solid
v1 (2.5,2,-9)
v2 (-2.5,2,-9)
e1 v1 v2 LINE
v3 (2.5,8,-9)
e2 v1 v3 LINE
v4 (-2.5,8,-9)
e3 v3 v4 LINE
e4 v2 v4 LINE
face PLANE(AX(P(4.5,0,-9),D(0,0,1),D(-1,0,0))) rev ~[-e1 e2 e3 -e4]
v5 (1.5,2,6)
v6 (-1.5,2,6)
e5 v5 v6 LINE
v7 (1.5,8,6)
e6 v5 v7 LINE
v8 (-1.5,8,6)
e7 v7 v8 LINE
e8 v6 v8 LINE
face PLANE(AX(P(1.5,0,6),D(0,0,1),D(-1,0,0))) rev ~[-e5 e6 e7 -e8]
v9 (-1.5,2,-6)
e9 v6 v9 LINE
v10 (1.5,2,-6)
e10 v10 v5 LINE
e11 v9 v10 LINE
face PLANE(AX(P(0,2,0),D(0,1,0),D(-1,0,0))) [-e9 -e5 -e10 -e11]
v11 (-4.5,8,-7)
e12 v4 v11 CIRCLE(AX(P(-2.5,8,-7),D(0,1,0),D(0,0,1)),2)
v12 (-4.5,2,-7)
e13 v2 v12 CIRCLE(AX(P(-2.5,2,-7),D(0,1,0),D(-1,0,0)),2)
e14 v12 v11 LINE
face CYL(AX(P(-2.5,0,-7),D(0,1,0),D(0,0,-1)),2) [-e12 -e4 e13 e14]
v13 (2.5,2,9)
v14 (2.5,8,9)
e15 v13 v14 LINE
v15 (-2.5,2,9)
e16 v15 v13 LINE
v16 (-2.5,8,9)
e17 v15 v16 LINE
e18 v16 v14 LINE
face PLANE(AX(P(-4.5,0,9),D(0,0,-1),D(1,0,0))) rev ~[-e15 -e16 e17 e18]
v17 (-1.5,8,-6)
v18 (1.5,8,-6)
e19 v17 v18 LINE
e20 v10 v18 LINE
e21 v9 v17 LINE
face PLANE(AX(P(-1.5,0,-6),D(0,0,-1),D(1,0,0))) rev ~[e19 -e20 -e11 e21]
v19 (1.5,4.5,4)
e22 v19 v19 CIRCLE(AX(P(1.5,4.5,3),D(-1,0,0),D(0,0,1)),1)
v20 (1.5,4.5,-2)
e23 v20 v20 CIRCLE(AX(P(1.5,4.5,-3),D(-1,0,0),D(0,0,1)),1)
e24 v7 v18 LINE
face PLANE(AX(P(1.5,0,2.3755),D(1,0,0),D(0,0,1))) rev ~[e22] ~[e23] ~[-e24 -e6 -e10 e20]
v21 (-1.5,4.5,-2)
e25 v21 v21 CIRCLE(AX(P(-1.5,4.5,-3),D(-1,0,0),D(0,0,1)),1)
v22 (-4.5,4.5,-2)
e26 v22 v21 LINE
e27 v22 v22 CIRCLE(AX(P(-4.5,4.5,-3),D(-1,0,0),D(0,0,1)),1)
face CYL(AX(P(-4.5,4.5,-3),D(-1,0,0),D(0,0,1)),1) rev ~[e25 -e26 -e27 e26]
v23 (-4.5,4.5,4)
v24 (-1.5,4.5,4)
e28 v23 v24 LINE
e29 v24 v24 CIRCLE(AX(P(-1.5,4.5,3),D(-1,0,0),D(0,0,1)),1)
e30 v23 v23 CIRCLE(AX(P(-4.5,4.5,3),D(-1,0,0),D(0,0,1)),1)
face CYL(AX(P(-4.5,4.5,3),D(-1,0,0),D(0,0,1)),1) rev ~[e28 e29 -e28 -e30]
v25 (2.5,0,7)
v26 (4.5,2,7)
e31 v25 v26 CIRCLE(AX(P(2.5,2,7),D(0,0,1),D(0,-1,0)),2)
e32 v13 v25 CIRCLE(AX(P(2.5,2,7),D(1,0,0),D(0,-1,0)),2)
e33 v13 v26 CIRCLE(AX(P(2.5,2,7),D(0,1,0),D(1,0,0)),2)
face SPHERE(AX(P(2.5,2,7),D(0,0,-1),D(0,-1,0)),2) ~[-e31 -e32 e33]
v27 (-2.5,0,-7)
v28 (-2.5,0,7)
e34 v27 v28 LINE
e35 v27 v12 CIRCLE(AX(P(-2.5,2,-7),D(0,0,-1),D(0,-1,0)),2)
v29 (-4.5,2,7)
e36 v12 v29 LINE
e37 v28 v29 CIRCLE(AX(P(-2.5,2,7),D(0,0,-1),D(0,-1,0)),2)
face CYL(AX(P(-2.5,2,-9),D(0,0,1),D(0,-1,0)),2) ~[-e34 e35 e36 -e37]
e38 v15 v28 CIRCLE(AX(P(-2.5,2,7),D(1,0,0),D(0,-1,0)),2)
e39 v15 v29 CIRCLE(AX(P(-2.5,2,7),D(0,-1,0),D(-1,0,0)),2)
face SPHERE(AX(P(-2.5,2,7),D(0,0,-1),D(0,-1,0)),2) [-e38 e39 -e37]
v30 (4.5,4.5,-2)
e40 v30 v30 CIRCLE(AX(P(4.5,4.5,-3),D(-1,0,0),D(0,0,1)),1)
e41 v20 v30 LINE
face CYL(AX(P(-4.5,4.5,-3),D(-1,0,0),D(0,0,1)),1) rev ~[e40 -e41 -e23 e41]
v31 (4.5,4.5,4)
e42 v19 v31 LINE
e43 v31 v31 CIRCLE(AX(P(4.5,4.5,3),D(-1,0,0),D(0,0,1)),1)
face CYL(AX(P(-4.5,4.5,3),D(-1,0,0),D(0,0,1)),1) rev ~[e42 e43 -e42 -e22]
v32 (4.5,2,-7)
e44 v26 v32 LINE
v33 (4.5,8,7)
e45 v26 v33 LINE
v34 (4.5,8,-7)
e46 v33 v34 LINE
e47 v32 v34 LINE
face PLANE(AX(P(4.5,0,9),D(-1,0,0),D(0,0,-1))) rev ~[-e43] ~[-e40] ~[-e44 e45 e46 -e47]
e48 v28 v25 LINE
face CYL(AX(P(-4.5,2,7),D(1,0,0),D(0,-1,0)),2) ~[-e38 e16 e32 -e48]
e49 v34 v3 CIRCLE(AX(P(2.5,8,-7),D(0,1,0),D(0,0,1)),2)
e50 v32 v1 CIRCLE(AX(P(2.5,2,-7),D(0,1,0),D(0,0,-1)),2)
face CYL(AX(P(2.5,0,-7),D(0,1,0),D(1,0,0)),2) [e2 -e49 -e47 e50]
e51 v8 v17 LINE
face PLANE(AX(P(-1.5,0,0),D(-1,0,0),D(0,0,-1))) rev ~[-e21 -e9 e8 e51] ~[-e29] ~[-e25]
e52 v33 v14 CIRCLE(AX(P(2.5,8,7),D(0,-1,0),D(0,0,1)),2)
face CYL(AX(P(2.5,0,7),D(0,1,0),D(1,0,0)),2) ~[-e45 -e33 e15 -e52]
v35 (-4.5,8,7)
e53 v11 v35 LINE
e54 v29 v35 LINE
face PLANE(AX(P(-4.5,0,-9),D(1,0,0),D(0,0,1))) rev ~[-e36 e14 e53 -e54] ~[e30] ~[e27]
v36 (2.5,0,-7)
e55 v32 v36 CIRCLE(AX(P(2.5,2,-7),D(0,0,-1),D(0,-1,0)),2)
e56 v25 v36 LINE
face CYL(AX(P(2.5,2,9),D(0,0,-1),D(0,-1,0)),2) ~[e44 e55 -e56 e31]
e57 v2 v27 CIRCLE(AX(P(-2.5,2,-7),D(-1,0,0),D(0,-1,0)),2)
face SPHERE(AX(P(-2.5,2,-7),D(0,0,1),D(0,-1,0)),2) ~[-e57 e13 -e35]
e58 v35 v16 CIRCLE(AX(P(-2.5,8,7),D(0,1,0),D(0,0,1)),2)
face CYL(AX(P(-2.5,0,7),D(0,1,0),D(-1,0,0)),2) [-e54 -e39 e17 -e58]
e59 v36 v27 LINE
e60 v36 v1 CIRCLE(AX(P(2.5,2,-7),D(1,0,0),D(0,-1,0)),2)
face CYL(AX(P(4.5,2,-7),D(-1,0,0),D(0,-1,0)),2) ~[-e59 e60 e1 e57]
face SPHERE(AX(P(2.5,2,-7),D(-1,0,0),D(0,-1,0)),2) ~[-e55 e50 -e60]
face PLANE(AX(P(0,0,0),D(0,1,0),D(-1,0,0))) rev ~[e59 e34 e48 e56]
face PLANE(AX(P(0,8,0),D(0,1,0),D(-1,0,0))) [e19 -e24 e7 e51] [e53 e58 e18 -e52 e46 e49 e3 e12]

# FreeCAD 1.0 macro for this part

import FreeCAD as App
import Part
import Sketcher
from FreeCAD import Vector
Q = App.Units.Quantity


def edges_at(feature, points):
    """Names of the edges that pass closest to the given points."""
    edges = feature.Shape.Edges
    near = lambda p: min(range(len(edges)), key=lambda i: edges[i].distToShape(Part.Vertex(*p))[0])
    return sorted({f"Edge{near(p) + 1}" for p in points})

doc = App.newDocument("Part")
params = doc.addObject("Spreadsheet::Sheet", "Params")
for row, (alias, value) in enumerate([
    ("sketch1_width", "3 mm"),
    ("sketch1_height", "12 mm"),
    ("pad1_length", "2 mm"),
    ("sketch2_width", "9 mm"),
    ("sketch2_width2", "3 mm"),
    ("sketch2_height", "18 mm"),
    ("sketch2_height2", "12 mm"),
    ("pad2_length", "8 mm"),
    ("fillet_radius", "2 mm"),
    ("sketch3_diameter", "2 mm"),
], start=1):
    params.set(f"A{row}", alias)
    params.set(f"B{row}", "=" + value)
    params.setAlias(f"B{row}", alias)

body = doc.addObject("PartDesign::Body", "Body")

# Sketch on XZ plane
sketch1 = body.newObject("Sketcher::SketchObject", "Sketch")
sketch1.AttachmentSupport = (doc.getObject("XZ_Plane"), [""])
sketch1.MapMode = "FlatFace"
sketch1.addGeometry(Part.LineSegment(Vector(-1.5, 6, 0), Vector(1.5, 6, 0)), False)
sketch1.addGeometry(Part.LineSegment(Vector(1.5, 6, 0), Vector(1.5, -6, 0)), False)
sketch1.addGeometry(Part.LineSegment(Vector(1.5, -6, 0), Vector(-1.5, -6, 0)), False)
sketch1.addGeometry(Part.LineSegment(Vector(-1.5, -6, 0), Vector(-1.5, 6, 0)), False)
sketch1.addConstraint(Sketcher.Constraint("Coincident", 0, 2, 1, 1))
sketch1.addConstraint(Sketcher.Constraint("Coincident", 1, 2, 2, 1))
sketch1.addConstraint(Sketcher.Constraint("Coincident", 2, 2, 3, 1))
sketch1.addConstraint(Sketcher.Constraint("Coincident", 3, 2, 0, 1))
sketch1.addConstraint(Sketcher.Constraint("Horizontal", 0))
sketch1.addConstraint(Sketcher.Constraint("Vertical", 1))
sketch1.addConstraint(Sketcher.Constraint("Horizontal", 2))
sketch1.addConstraint(Sketcher.Constraint("Vertical", 3))
sketch1.addConstraint(Sketcher.Constraint("Symmetric", 0, 2, 2, 2, -1, 1))
sketch1.addConstraint(Sketcher.Constraint("DistanceX", 0, 1, 0, 2, Q("3 mm")))
sketch1.addConstraint(Sketcher.Constraint("DistanceY", 1, 2, 1, 1, Q("12 mm")))
sketch1.setExpression("Constraints[9]", "Params.sketch1_width")
sketch1.setExpression("Constraints[10]", "Params.sketch1_height")
pad1 = body.newObject("PartDesign::Pad", "Pad")
pad1.Profile = sketch1
pad1.setExpression("Length", "Params.pad1_length")
pad1.Reversed = True

# Sketch on XZ plane
sketch2 = body.newObject("Sketcher::SketchObject", "Sketch001")
sketch2.AttachmentSupport = (doc.getObject("XZ_Plane"), [""])
sketch2.MapMode = "FlatFace"
sketch2.addGeometry(Part.LineSegment(Vector(4.5, 9, 0), Vector(4.5, -9, 0)), False)
sketch2.addGeometry(Part.LineSegment(Vector(4.5, -9, 0), Vector(-4.5, -9, 0)), False)
sketch2.addGeometry(Part.LineSegment(Vector(-4.5, -9, 0), Vector(-4.5, 9, 0)), False)
sketch2.addGeometry(Part.LineSegment(Vector(-4.5, 9, 0), Vector(4.5, 9, 0)), False)
sketch2.addGeometry(Part.LineSegment(Vector(1.5, 6, 0), Vector(-1.5, 6, 0)), False)
sketch2.addGeometry(Part.LineSegment(Vector(-1.5, 6, 0), Vector(-1.5, -6, 0)), False)
sketch2.addGeometry(Part.LineSegment(Vector(-1.5, -6, 0), Vector(1.5, -6, 0)), False)
sketch2.addGeometry(Part.LineSegment(Vector(1.5, -6, 0), Vector(1.5, 6, 0)), False)
sketch2.addConstraint(Sketcher.Constraint("Coincident", 0, 2, 1, 1))
sketch2.addConstraint(Sketcher.Constraint("Coincident", 1, 2, 2, 1))
sketch2.addConstraint(Sketcher.Constraint("Coincident", 2, 2, 3, 1))
sketch2.addConstraint(Sketcher.Constraint("Coincident", 3, 2, 0, 1))
sketch2.addConstraint(Sketcher.Constraint("Coincident", 4, 2, 5, 1))
sketch2.addConstraint(Sketcher.Constraint("Coincident", 5, 2, 6, 1))
sketch2.addConstraint(Sketcher.Constraint("Coincident", 6, 2, 7, 1))
sketch2.addConstraint(Sketcher.Constraint("Coincident", 7, 2, 4, 1))
sketch2.addConstraint(Sketcher.Constraint("Vertical", 0))
sketch2.addConstraint(Sketcher.Constraint("Horizontal", 1))
sketch2.addConstraint(Sketcher.Constraint("Vertical", 2))
sketch2.addConstraint(Sketcher.Constraint("Horizontal", 3))
sketch2.addConstraint(Sketcher.Constraint("Horizontal", 4))
sketch2.addConstraint(Sketcher.Constraint("Vertical", 5))
sketch2.addConstraint(Sketcher.Constraint("Horizontal", 6))
sketch2.addConstraint(Sketcher.Constraint("Vertical", 7))
sketch2.addConstraint(Sketcher.Constraint("Symmetric", 0, 2, 2, 2, -1, 1))
sketch2.addConstraint(Sketcher.Constraint("Symmetric", 4, 2, 6, 2, -1, 1))
sketch2.addConstraint(Sketcher.Constraint("DistanceX", 1, 2, 1, 1, Q("9 mm")))
sketch2.addConstraint(Sketcher.Constraint("DistanceX", 4, 2, 4, 1, Q("3 mm")))
sketch2.addConstraint(Sketcher.Constraint("DistanceY", 0, 2, 0, 1, Q("18 mm")))
sketch2.addConstraint(Sketcher.Constraint("DistanceY", 5, 2, 5, 1, Q("12 mm")))
sketch2.setExpression("Constraints[18]", "Params.sketch2_width")
sketch2.setExpression("Constraints[19]", "Params.sketch2_width2")
sketch2.setExpression("Constraints[20]", "Params.sketch2_height")
sketch2.setExpression("Constraints[21]", "Params.sketch2_height2")
pad2 = body.newObject("PartDesign::Pad", "Pad001")
pad2.Profile = sketch2
pad2.setExpression("Length", "Params.pad2_length")
pad2.Reversed = True
doc.recompute()

fillet = body.newObject("PartDesign::Fillet", "Fillet")
fillet.Base = (pad2, edges_at(pad2, [
    (-4.5, 0, 0),
    (0, 0, -9),
    (4.5, 0, 0),
    (0, 0, 9),
    (-4.5, 4, -9),
    (-4.5, 4, 9),
    (4.5, 4, 9),
    (4.5, 4, -9),
]))
fillet.setExpression("Radius", "Params.fillet_radius")

# Sketch on YZ plane
sketch3 = body.newObject("Sketcher::SketchObject", "Sketch002")
sketch3.AttachmentSupport = (doc.getObject("YZ_Plane"), [""])
sketch3.MapMode = "FlatFace"
sketch3.AttachmentOffset = App.Placement(Vector(0, 0, -4.5), App.Rotation())
sketch3.addGeometry(Part.Circle(Vector(4.5, -3, 0), Vector(0, 0, 1), 1), False)
sketch3.addGeometry(Part.Circle(Vector(4.5, 3, 0), Vector(0, 0, 1), 1), False)
sketch3.addConstraint(Sketcher.Constraint("Equal", 0, 1))
sketch3.addConstraint(Sketcher.Constraint("Symmetric", 0, 3, 1, 3, -1))
sketch3.addConstraint(Sketcher.Constraint("Diameter", 0, Q("2 mm")))
sketch3.addConstraint(Sketcher.Constraint("DistanceY", 0, 3, 1, 3, Q("6 mm")))
sketch3.addConstraint(Sketcher.Constraint("DistanceX", -1, 1, 0, 3, Q("4.5 mm")))
sketch3.setExpression("Constraints[2]", "Params.sketch3_diameter")
pocket1 = body.newObject("PartDesign::Pocket", "Pocket")
pocket1.Profile = sketch3
pocket1.Type = "ThroughAll"
pocket1.Reversed = True

doc.recompute()
